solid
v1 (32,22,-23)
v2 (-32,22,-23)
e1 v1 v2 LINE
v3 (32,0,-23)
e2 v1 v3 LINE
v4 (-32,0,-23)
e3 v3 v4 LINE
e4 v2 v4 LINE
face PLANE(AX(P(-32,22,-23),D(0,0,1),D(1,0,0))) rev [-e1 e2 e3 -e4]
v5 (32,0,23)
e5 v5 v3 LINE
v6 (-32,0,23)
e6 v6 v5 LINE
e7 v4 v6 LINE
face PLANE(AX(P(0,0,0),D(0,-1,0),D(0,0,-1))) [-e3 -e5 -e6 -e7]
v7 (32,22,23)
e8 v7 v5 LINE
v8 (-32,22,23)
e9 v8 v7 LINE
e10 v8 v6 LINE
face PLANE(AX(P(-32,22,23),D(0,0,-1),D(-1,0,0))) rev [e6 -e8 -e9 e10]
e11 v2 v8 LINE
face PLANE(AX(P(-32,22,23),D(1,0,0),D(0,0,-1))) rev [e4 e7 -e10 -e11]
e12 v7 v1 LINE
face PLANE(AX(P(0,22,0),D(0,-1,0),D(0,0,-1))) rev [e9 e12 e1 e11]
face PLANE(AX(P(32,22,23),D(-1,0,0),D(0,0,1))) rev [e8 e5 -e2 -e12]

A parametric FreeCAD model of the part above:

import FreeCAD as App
import Part
import Sketcher
from FreeCAD import Vector


def add_polygon(sketch, points):
    """Adds a closed chain of lines whose ends are joined by coincident constraints."""
    first, n = sketch.GeometryCount, len(points)
    for a, b in zip(points, points[1:] + points[:1]):
        sketch.addGeometry(Part.LineSegment(App.Vector(*a, 0), App.Vector(*b, 0)), False)
    for i in range(n):
        sketch.addConstraint(Sketcher.Constraint("Coincident", first + i, 2, first + (i + 1) % n, 1))

doc = App.newDocument("Part")
params = doc.addObject("Spreadsheet::Sheet", "Params")
for row, (alias, value) in enumerate([
    ("sketch1_width", "64 mm"),
    ("sketch1_height", "46 mm"),
    ("pad1_length", "22 mm"),
], start=1):
    params.set(f"A{row}", alias)
    params.set(f"B{row}", "=" + value)
    params.setAlias(f"B{row}", alias)

body = doc.addObject("PartDesign::Body", "Body")

sketch1 = body.newObject("Sketcher::SketchObject", "Sketch")
sketch1.AttachmentSupport = (doc.getObject("XZ_Plane"), [""])
sketch1.MapMode = "FlatFace"
add_polygon(sketch1, [(-32, -23), (-32, 23), (32, 23), (32, -23)])
sketch1.addConstraint([
    Sketcher.Constraint("Vertical", 0),
    Sketcher.Constraint("Horizontal", 1),
    Sketcher.Constraint("Vertical", 2),
    Sketcher.Constraint("Horizontal", 3),
    Sketcher.Constraint("Symmetric", 0, 2, 2, 2, -1, 1),
    Sketcher.Constraint("DistanceX", 1, 1, 1, 2, 64.0),
    Sketcher.Constraint("DistanceY", 0, 1, 0, 2, 46.0),
])
sketch1.setExpression("Constraints[9]", "Params.sketch1_width")
sketch1.setExpression("Constraints[10]", "Params.sketch1_height")
pad1 = body.newObject("PartDesign::Pad", "Pad")
pad1.Profile = sketch1
pad1.setExpression("Length", "Params.pad1_length")
pad1.Reversed = True

doc.recompute()
